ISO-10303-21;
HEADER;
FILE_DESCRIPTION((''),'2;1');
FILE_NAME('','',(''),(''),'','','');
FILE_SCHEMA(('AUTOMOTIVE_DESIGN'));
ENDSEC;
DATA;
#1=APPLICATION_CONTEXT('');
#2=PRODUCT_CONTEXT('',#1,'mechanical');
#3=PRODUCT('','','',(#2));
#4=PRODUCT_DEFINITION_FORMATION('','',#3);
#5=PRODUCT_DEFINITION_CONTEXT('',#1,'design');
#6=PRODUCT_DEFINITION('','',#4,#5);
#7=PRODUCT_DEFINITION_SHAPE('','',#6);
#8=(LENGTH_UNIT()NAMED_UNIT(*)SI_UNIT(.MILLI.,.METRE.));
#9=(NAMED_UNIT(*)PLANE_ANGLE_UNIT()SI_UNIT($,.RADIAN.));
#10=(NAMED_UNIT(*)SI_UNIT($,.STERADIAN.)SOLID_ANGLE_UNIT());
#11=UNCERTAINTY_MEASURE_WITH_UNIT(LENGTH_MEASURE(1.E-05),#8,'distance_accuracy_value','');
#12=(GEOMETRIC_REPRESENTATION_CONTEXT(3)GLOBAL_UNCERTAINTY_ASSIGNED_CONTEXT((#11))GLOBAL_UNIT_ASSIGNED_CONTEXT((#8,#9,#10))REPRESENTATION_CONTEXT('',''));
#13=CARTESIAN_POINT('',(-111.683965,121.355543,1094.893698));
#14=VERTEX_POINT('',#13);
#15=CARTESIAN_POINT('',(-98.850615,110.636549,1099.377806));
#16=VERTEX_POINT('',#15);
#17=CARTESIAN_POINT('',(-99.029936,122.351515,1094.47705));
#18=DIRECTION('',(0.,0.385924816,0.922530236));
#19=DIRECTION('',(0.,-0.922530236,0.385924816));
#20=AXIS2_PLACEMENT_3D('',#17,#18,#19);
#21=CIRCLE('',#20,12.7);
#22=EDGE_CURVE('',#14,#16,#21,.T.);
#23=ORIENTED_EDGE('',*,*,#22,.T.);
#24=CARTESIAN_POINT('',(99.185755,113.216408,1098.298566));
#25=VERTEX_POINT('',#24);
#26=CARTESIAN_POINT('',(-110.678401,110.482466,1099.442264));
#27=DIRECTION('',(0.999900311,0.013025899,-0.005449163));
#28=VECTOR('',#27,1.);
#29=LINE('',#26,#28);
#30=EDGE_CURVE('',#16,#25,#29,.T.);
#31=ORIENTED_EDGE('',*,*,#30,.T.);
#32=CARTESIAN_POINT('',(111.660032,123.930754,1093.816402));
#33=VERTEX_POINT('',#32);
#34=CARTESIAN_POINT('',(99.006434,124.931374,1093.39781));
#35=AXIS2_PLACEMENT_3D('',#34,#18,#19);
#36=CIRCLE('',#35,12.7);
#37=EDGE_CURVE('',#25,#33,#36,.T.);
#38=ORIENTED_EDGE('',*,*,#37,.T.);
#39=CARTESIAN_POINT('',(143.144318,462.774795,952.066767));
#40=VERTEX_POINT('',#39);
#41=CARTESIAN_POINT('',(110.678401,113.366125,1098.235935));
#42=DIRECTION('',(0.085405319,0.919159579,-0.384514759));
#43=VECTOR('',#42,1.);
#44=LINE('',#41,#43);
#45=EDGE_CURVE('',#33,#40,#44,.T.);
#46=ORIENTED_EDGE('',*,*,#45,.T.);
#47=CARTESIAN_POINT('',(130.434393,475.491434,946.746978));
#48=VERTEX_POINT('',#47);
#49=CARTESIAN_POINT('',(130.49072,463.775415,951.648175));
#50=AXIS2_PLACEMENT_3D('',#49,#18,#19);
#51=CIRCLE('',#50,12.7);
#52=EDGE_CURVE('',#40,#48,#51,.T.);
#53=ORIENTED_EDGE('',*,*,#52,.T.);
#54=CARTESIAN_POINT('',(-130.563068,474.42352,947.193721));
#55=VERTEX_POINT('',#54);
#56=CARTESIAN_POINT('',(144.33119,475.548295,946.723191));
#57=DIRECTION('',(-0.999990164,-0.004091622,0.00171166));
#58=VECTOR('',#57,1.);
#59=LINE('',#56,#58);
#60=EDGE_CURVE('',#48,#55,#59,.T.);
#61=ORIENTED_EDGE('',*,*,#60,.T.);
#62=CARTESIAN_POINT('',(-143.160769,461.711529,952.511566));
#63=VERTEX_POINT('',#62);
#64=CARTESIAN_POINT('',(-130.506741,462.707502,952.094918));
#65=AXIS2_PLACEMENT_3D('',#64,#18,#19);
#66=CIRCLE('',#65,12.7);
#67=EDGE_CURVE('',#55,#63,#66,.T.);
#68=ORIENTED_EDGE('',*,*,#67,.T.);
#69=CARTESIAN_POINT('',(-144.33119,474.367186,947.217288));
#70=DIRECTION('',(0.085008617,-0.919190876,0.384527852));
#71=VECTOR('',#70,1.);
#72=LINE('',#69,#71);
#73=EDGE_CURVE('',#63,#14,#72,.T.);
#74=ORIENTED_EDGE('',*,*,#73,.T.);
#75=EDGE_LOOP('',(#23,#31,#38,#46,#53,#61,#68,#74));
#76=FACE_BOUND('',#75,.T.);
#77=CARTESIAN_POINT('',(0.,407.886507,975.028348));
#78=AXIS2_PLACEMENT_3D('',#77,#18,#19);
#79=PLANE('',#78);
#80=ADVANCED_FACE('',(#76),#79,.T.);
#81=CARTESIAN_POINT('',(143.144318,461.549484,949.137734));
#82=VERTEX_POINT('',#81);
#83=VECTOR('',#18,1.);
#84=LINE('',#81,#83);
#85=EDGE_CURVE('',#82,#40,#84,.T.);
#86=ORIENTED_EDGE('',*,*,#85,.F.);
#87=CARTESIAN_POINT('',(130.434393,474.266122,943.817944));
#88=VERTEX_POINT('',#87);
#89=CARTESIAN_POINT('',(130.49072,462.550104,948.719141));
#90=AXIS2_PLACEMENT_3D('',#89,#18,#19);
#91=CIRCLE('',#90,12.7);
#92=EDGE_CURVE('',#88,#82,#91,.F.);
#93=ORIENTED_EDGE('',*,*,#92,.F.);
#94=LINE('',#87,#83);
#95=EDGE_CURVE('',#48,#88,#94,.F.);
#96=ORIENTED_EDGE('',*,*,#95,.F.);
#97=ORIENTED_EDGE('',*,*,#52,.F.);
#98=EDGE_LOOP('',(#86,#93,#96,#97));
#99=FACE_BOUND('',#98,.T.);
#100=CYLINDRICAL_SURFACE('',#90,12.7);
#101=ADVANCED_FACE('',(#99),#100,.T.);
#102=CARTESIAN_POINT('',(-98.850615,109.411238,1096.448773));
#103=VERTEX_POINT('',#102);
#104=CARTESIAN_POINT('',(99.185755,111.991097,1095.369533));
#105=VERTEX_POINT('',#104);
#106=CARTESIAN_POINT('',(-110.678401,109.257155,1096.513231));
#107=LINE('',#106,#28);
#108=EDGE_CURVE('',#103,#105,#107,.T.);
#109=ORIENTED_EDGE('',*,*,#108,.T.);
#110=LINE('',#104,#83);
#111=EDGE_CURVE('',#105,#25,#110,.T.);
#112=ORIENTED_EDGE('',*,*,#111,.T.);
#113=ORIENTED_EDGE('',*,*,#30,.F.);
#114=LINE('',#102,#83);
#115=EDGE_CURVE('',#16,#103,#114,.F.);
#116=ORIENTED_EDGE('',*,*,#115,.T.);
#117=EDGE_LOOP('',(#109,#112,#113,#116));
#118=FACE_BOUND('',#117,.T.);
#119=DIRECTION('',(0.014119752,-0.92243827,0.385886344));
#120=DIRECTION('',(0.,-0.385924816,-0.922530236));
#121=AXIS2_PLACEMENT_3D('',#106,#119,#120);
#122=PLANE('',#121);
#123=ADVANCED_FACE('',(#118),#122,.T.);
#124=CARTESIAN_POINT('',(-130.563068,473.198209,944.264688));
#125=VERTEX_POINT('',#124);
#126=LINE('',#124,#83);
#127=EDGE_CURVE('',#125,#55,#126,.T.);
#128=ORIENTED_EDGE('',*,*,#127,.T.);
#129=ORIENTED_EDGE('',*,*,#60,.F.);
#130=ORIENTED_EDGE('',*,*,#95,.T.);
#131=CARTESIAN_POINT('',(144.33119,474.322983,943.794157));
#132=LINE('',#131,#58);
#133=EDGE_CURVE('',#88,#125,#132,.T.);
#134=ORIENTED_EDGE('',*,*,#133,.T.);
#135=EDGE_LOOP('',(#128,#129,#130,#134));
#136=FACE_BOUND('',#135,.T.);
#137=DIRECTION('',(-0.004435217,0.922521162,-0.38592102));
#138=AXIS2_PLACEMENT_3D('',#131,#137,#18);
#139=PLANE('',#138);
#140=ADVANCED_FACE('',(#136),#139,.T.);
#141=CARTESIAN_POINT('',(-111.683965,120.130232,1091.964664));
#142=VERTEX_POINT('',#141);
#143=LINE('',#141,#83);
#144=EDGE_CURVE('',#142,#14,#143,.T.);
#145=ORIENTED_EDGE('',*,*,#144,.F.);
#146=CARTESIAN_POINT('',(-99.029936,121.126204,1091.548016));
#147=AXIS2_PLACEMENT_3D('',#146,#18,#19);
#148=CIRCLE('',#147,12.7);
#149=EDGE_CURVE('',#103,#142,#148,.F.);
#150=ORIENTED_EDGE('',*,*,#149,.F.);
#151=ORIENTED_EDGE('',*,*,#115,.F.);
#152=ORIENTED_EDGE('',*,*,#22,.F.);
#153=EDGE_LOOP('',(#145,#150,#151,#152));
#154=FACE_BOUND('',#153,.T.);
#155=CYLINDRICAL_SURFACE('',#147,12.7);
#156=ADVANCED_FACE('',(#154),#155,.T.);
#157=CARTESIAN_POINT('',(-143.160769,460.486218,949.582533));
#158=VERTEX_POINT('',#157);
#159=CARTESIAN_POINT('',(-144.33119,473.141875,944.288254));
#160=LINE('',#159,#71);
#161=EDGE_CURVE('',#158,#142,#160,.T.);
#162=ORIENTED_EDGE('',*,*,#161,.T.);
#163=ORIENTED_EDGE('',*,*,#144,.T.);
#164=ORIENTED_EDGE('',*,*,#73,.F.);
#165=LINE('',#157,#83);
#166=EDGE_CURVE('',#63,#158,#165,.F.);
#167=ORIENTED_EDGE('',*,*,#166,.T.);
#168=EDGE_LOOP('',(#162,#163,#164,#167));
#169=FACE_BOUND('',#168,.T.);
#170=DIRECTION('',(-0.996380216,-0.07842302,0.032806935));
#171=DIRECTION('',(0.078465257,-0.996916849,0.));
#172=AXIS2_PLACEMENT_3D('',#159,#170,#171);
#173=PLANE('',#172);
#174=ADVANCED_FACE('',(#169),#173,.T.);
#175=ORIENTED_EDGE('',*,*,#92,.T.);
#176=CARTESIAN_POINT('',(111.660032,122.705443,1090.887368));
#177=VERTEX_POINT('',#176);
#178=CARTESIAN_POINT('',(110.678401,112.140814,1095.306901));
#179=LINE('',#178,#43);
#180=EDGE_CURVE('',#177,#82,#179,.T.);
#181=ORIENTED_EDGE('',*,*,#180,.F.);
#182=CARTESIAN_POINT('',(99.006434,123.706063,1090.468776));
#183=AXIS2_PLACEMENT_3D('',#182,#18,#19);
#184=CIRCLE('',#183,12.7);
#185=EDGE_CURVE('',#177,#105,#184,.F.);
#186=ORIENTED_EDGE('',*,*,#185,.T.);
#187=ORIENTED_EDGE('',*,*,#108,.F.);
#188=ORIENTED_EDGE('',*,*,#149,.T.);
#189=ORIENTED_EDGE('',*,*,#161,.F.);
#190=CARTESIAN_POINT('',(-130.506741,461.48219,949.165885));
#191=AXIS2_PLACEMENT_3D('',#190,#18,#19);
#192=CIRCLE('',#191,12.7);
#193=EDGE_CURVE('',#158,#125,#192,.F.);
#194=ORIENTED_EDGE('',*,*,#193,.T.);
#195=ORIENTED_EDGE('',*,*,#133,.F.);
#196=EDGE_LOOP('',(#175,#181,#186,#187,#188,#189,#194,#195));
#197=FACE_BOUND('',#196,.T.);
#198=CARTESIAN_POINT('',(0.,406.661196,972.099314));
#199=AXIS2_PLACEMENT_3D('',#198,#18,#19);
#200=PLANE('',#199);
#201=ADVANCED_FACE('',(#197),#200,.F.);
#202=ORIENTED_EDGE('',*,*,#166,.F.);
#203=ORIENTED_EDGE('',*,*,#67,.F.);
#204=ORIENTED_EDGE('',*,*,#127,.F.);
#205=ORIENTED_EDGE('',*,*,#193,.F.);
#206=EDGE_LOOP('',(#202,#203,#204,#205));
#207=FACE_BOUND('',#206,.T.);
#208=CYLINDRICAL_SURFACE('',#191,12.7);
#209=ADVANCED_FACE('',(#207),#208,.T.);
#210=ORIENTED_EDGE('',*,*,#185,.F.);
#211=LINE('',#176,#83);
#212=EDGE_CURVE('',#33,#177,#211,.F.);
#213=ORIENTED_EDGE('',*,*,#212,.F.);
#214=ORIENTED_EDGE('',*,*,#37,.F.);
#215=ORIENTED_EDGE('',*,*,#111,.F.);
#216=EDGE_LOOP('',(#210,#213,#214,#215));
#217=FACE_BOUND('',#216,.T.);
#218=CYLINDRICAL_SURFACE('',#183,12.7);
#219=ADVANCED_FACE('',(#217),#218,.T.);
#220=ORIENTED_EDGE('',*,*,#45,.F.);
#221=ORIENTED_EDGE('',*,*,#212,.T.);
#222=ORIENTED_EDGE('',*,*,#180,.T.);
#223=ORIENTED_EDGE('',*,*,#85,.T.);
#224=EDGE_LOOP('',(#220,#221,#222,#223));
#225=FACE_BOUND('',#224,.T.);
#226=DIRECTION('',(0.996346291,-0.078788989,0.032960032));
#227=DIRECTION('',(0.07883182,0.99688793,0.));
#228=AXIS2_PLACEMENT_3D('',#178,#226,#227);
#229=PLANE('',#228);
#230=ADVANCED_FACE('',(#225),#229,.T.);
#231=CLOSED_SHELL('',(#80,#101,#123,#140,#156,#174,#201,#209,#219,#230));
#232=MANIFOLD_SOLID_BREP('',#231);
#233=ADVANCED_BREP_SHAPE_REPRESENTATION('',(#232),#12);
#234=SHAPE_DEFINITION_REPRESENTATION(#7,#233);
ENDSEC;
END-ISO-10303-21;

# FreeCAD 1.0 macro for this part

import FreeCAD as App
import Part
import Sketcher
from FreeCAD import Vector
Q = App.Units.Quantity


def edges_at(feature, points):
    """Names of the edges that pass closest to the given points."""
    edges = feature.Shape.Edges
    near = lambda p: min(range(len(edges)), key=lambda i: edges[i].distToShape(Part.Vertex(*p))[0])
    return sorted({f"Edge{near(p) + 1}" for p in points})

doc = App.newDocument("Part")
body = doc.addObject("PartDesign::Body", "Body")

# Sketch on an angled plane
sketch1 = body.newObject("Sketcher::SketchObject", "Sketch")
sketch1.Placement = App.Placement(Vector(0, 407.886507, 975.028348), App.Rotation(Vector(1, 0, 0), Vector(0, 0.922530236, -0.385924816), Vector(0, 0.385924816, 0.922530236), "ZXY"))
sketch1.addGeometry([
    Part.LineSegment(Vector(144.33119, 73.343707, 0), Vector(-144.33119, 72.063415, 0)),
    Part.LineSegment(Vector(-144.33119, 72.063415, 0), Vector(-110.678401, -322.378638, 0)),
    Part.LineSegment(Vector(-110.678401, -322.378638, 0), Vector(110.678401, -319.252823, 0)),
    Part.LineSegment(Vector(110.678401, -319.252823, 0), Vector(144.33119, 73.343707, 0)),
], False)
sketch1.addConstraint([
    Sketcher.Constraint("Coincident", 0, 2, 1, 1),
    Sketcher.Constraint("Coincident", 1, 2, 2, 1),
    Sketcher.Constraint("Coincident", 2, 2, 3, 1),
    Sketcher.Constraint("Coincident", 3, 2, 0, 1),
    Sketcher.Constraint("DistanceX", 1, 2, -1, 1, 110.678401),
    Sketcher.Constraint("DistanceX", -1, 1, 2, 2, 110.678401),
    Sketcher.Constraint("Distance", 0, 288.665219),
    Sketcher.Constraint("Distance", 2, 221.37887),
    Sketcher.Constraint("DistanceX", 0, 2, -1, 1, 144.33119),
    Sketcher.Constraint("DistanceX", -1, 1, 3, 2, 144.33119),
    Sketcher.Constraint("DistanceY", 2, 2, 3, 2, 392.59653),
    Sketcher.Constraint("DistanceY", -1, 1, 0, 2, 72.063415),
])
pad1 = body.newObject("PartDesign::Pad", "Pad")
pad1.Profile = sketch1
pad1.Length = Q("0.125 in")
pad1.Reversed = True
doc.recompute()

fillet = body.newObject("PartDesign::Fillet", "Fillet")
fillet.Base = (pad1, edges_at(pad1, [
    (110.678, 112.753, 1096.771),
    (-110.678, 109.87, 1097.978),
    (-144.331, 473.755, 945.753),
    (144.331, 474.936, 945.259),
]))
fillet.Radius = Q("0.5 in")

doc.recompute()
